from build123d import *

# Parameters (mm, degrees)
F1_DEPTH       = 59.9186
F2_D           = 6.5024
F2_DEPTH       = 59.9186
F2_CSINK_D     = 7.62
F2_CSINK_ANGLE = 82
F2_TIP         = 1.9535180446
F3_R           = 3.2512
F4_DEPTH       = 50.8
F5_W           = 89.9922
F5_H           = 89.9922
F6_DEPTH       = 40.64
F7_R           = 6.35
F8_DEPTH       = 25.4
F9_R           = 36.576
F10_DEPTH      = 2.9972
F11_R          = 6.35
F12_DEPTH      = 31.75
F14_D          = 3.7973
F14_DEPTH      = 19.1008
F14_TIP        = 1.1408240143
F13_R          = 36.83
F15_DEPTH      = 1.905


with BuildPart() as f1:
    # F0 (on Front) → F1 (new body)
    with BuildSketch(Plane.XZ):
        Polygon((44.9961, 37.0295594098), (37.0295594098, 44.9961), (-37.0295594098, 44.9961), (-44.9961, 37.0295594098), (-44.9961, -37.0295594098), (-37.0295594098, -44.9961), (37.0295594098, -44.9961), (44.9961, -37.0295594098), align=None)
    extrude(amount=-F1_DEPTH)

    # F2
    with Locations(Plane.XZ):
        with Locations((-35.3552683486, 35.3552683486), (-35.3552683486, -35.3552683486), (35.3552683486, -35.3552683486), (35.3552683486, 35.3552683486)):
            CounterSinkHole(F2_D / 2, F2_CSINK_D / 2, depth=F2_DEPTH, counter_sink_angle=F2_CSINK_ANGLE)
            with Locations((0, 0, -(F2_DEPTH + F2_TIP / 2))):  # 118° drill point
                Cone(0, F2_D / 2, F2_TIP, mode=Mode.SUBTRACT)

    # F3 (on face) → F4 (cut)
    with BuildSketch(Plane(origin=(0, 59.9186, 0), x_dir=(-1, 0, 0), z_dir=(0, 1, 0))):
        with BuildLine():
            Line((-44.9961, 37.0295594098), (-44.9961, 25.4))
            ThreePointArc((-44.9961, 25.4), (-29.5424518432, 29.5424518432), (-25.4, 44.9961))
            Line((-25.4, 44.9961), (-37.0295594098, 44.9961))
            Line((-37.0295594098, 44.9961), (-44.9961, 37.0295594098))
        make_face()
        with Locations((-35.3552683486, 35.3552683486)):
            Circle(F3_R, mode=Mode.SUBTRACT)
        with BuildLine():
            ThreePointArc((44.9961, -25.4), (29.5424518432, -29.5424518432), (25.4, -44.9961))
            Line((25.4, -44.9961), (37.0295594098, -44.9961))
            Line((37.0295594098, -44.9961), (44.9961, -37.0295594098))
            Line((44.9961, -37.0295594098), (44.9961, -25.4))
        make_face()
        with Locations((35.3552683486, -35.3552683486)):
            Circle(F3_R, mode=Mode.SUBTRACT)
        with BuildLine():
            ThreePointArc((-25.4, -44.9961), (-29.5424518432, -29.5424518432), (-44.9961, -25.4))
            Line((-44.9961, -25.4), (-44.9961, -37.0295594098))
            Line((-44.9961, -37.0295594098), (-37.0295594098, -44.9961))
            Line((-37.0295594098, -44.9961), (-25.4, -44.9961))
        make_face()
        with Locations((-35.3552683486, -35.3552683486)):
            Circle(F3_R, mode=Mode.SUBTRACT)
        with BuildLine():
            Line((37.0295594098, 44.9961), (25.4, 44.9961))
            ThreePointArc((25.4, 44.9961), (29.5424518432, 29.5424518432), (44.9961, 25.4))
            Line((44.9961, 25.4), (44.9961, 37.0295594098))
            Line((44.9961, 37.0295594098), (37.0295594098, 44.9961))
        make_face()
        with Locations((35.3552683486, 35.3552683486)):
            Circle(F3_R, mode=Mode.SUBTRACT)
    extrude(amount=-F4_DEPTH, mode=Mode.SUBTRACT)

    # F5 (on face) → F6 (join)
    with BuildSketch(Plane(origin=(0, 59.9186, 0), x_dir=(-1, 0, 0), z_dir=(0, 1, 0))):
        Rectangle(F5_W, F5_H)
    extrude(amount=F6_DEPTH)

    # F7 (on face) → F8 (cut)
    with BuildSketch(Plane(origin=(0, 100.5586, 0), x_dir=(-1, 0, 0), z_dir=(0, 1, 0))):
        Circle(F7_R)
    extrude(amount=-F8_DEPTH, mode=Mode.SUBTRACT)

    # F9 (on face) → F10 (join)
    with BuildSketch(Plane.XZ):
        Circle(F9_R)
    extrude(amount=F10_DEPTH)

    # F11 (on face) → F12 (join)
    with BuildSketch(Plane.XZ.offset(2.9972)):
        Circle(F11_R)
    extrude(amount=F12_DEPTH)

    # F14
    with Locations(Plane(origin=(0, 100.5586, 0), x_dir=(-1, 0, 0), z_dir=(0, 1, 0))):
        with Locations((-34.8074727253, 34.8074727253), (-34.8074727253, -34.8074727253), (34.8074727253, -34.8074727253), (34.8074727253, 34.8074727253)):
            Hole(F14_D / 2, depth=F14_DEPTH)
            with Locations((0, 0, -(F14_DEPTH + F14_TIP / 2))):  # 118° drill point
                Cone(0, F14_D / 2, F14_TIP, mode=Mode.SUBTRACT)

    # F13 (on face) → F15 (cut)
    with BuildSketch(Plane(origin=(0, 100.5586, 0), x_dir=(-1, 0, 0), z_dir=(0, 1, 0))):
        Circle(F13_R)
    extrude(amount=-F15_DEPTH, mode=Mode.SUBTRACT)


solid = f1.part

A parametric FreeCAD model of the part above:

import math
import FreeCAD as App
import Part
import Sketcher
from FreeCAD import Vector
Q = App.Units.Quantity

doc = App.newDocument("Part")
body = doc.addObject("PartDesign::Body", "Body")

sketch1 = body.newObject("Sketcher::SketchObject", "Sketch")
sketch1.AttachmentSupport = (doc.getObject("XZ_Plane"), [""])
sketch1.MapMode = "FlatFace"
sketch1.addGeometry([
    Part.LineSegment(Vector(45, 37, 0), Vector(37, 45, 0)),
    Part.LineSegment(Vector(37, 45, 0), Vector(-37, 45, 0)),
    Part.LineSegment(Vector(-37, 45, 0), Vector(-45, 37, 0)),
    Part.LineSegment(Vector(-45, 37, 0), Vector(-45, -37, 0)),
    Part.LineSegment(Vector(-45, -37, 0), Vector(-37, -45, 0)),
    Part.LineSegment(Vector(-37, -45, 0), Vector(37, -45, 0)),
    Part.LineSegment(Vector(37, -45, 0), Vector(45, -37, 0)),
    Part.LineSegment(Vector(45, -37, 0), Vector(45, 37, 0)),
], False)
sketch1.addConstraint([
    Sketcher.Constraint("Coincident", 0, 2, 1, 1),
    Sketcher.Constraint("Coincident", 1, 2, 2, 1),
    Sketcher.Constraint("Coincident", 2, 2, 3, 1),
    Sketcher.Constraint("Coincident", 3, 2, 4, 1),
    Sketcher.Constraint("Coincident", 4, 2, 5, 1),
    Sketcher.Constraint("Coincident", 5, 2, 6, 1),
    Sketcher.Constraint("Coincident", 6, 2, 7, 1),
    Sketcher.Constraint("Coincident", 7, 2, 0, 1),
    Sketcher.Constraint("Horizontal", 1),
    Sketcher.Constraint("Vertical", 3),
    Sketcher.Constraint("Horizontal", 5),
    Sketcher.Constraint("Vertical", 7),
    Sketcher.Constraint("Symmetric", 0, 2, 4, 2, -1, 1),
    Sketcher.Constraint("Symmetric", 2, 2, 6, 2, -1, 1),
    Sketcher.Constraint("Perpendicular", 0, 2),
    Sketcher.Constraint("Perpendicular", 2, 4),
    Sketcher.Constraint("Perpendicular", 4, 6),
    Sketcher.Constraint("Horizontal", 3, 2, 6, 2),
    Sketcher.Constraint("Vertical", 1, 2, 4, 2),
    Sketcher.Constraint("Equal", 5, 3),
    Sketcher.Constraint("DistanceY", 4, 2, 1, 2, Q("3.543 in")),
    Sketcher.Constraint("DistanceX", 1, 2, 1, 1, 74.059119),
])
pad1 = body.newObject("PartDesign::Pad", "Pad")
pad1.Profile = sketch1
pad1.Length = Q("2.359 in")
pad1.Reversed = True

sketch2 = body.newObject("Sketcher::SketchObject", "Sketch001")
sketch2.AttachmentSupport = (doc.getObject("XZ_Plane"), [""])
sketch2.MapMode = "FlatFace"
sketch2.addGeometry([
    Part.Circle(Vector(-35.4, 35.4, 0), Vector(0, 0, 1), 3.3),
    Part.Circle(Vector(-35.4, -35.4, 0), Vector(0, 0, 1), 3.3),
    Part.Circle(Vector(35.4, -35.4, 0), Vector(0, 0, 1), 3.3),
    Part.Circle(Vector(35.4, 35.4, 0), Vector(0, 0, 1), 3.3),
], False)
sketch2.addConstraint([
    Sketcher.Constraint("Equal", 0, 1),
    Sketcher.Constraint("Equal", 1, 2),
    Sketcher.Constraint("Equal", 2, 3),
    Sketcher.Constraint("Symmetric", 0, 3, 2, 3, -1, 1),
    Sketcher.Constraint("Symmetric", 1, 3, 3, 3, -1, 1),
    Sketcher.Constraint("Symmetric", 1, 3, 2, 3, -2),
    Sketcher.Constraint("Diameter", 0, Q("0.256 in")),
    Sketcher.Constraint("DistanceX", 0, 3, -1, 1, 35.355268),
    Sketcher.Constraint("DistanceY", -1, 1, 0, 3, 35.355268),
])
doc.recompute()
hole = body.newObject("PartDesign::Hole", "Hole")
hole.Profile = sketch2
hole.ThreadType = "None"
hole.Diameter = Q("0.256 in")
hole.DepthType = "Dimension"
hole.Depth = Q("2.359 in")
hole.DrillPoint = "Angled"
hole.DrillPointAngle = 118
hole.HoleCutType = "Countersink"
hole.HoleCutDiameter = Q("0.3 in")
hole.HoleCutCountersinkAngle = 82

sketch3 = body.newObject("Sketcher::SketchObject", "Sketch002")
sketch3.AttachmentSupport = (doc.getObject("XZ_Plane"), [""])
sketch3.MapMode = "FlatFace"
sketch3.AttachmentOffset = App.Placement(Vector(0, 0, -2.359 * 25.4), App.Rotation())
sketch3.addGeometry([
    Part.LineSegment(Vector(45, 37, 0), Vector(45, 25.4, 0)),
    Part.ArcOfCircle(Part.Circle(Vector(40.9, 40.9, 0), Vector(0, 0, 1), 16), math.radians(165), math.radians(285)),
    Part.LineSegment(Vector(25.4, 45, 0), Vector(37, 45, 0)),
    Part.LineSegment(Vector(37, 45, 0), Vector(45, 37, 0)),
    Part.Circle(Vector(35.4, 35.4, 0), Vector(0, 0, 1), 3.3),
    Part.ArcOfCircle(Part.Circle(Vector(-40.9, -40.9, 0), Vector(0, 0, 1), 16), math.radians(-15), math.radians(105)),
    Part.LineSegment(Vector(-25.4, -45, 0), Vector(-37, -45, 0)),
    Part.LineSegment(Vector(-37, -45, 0), Vector(-45, -37, 0)),
    Part.LineSegment(Vector(-45, -37, 0), Vector(-45, -25.4, 0)),
    Part.Circle(Vector(-35.4, -35.4, 0), Vector(0, 0, 1), 3.3),
    Part.ArcOfCircle(Part.Circle(Vector(40.9, -40.9, 0), Vector(0, 0, 1), 16), math.radians(75), math.radians(195)),
    Part.LineSegment(Vector(45, -25.4, 0), Vector(45, -37, 0)),
    Part.LineSegment(Vector(45, -37, 0), Vector(37, -45, 0)),
    Part.LineSegment(Vector(37, -45, 0), Vector(25.4, -45, 0)),
    Part.Circle(Vector(35.4, -35.4, 0), Vector(0, 0, 1), 3.3),
    Part.LineSegment(Vector(-37, 45, 0), Vector(-25.4, 45, 0)),
    Part.ArcOfCircle(Part.Circle(Vector(-40.9, 40.9, 0), Vector(0, 0, 1), 16), math.radians(-105), math.radians(15)),
    Part.LineSegment(Vector(-45, 25.4, 0), Vector(-45, 37, 0)),
    Part.LineSegment(Vector(-45, 37, 0), Vector(-37, 45, 0)),
    Part.Circle(Vector(-35.4, 35.4, 0), Vector(0, 0, 1), 3.3),
], False)
sketch3.addConstraint([
    Sketcher.Constraint("Coincident", 0, 2, 1, 2),
    Sketcher.Constraint("Coincident", 1, 1, 2, 1),
    Sketcher.Constraint("Coincident", 2, 2, 3, 1),
    Sketcher.Constraint("Coincident", 3, 2, 0, 1),
    Sketcher.Constraint("Coincident", 5, 1, 6, 1),
    Sketcher.Constraint("Coincident", 6, 2, 7, 1),
    Sketcher.Constraint("Coincident", 7, 2, 8, 1),
    Sketcher.Constraint("Coincident", 8, 2, 5, 2),
    Sketcher.Constraint("Coincident", 10, 1, 11, 1),
    Sketcher.Constraint("Coincident", 11, 2, 12, 1),
    Sketcher.Constraint("Coincident", 12, 2, 13, 1),
    Sketcher.Constraint("Coincident", 13, 2, 10, 2),
    Sketcher.Constraint("Coincident", 15, 2, 16, 2),
    Sketcher.Constraint("Coincident", 16, 1, 17, 1),
    Sketcher.Constraint("Coincident", 17, 2, 18, 1),
    Sketcher.Constraint("Coincident", 18, 2, 15, 1),
    Sketcher.Constraint("Vertical", 0),
    Sketcher.Constraint("Horizontal", 2),
    Sketcher.Constraint("Horizontal", 6),
    Sketcher.Constraint("Vertical", 8),
    Sketcher.Constraint("Vertical", 11),
    Sketcher.Constraint("Horizontal", 13),
    Sketcher.Constraint("Horizontal", 15),
    Sketcher.Constraint("Vertical", 17),
    Sketcher.Constraint("Equal", 1, 5),
    Sketcher.Constraint("Equal", 4, 9),
    Sketcher.Constraint("Equal", 5, 10),
    Sketcher.Constraint("Equal", 9, 14),
    Sketcher.Constraint("Equal", 10, 16),
    Sketcher.Constraint("Equal", 14, 19),
    Sketcher.Constraint("Symmetric", 1, 3, 5, 3, -1, 1),
    Sketcher.Constraint("Symmetric", 4, 3, 9, 3, -1, 1),
    Sketcher.Constraint("Symmetric", 10, 3, 16, 3, -1, 1),
    Sketcher.Constraint("Symmetric", 14, 3, 19, 3, -1, 1),
    Sketcher.Constraint("Symmetric", 2, 2, 6, 2, -1, 1),
    Sketcher.Constraint("Symmetric", 3, 2, 7, 2, -1, 1),
    Sketcher.Constraint("Symmetric", 11, 2, 17, 2, -1, 1),
    Sketcher.Constraint("Symmetric", 12, 2, 18, 2, -1, 1),
    Sketcher.Constraint("Symmetric", 5, 3, 10, 3, -2),
    Sketcher.Constraint("Symmetric", 9, 3, 14, 3, -2),
    Sketcher.Constraint("Symmetric", 7, 2, 11, 2, -2),
    Sketcher.Constraint("Symmetric", 6, 2, 12, 2, -2),
    Sketcher.Constraint("Perpendicular", 7, 12),
    Sketcher.Constraint("Equal", 15, 0),
    Sketcher.Constraint("Radius", 1, Q("0.63 in")),
    Sketcher.Constraint("Diameter", 4, Q("0.256 in")),
    Sketcher.Constraint("DistanceY", -1, 1, 0, 2, Q("1 in")),
    Sketcher.Constraint("DistanceX", -1, 1, 1, 1, Q("1 in")),
    Sketcher.Constraint("DistanceX", -1, 1, 0, 2, Q("1.7715 in")),
    Sketcher.Constraint("DistanceX", 2, 1, 2, 2, 11.629559),
    Sketcher.Constraint("DistanceX", -1, 1, 4, 3, 35.355268),
    Sketcher.Constraint("DistanceY", -1, 1, 4, 3, 35.355268),
])
pocket1 = body.newObject("PartDesign::Pocket", "Pocket")
pocket1.Profile = sketch3
pocket1.Length = Q("2 in")
pocket1.Reversed = True

sketch4 = body.newObject("Sketcher::SketchObject", "Sketch003")
sketch4.AttachmentSupport = (doc.getObject("XZ_Plane"), [""])
sketch4.MapMode = "FlatFace"
sketch4.AttachmentOffset = App.Placement(Vector(0, 0, -2.359 * 25.4), App.Rotation())
sketch4.addGeometry([
    Part.LineSegment(Vector(45, 45, 0), Vector(45, -45, 0)),
    Part.LineSegment(Vector(45, -45, 0), Vector(-45, -45, 0)),
    Part.LineSegment(Vector(-45, -45, 0), Vector(-45, 45, 0)),
    Part.LineSegment(Vector(-45, 45, 0), Vector(45, 45, 0)),
], False)
sketch4.addConstraint([
    Sketcher.Constraint("Coincident", 0, 2, 1, 1),
    Sketcher.Constraint("Coincident", 1, 2, 2, 1),
    Sketcher.Constraint("Coincident", 2, 2, 3, 1),
    Sketcher.Constraint("Coincident", 3, 2, 0, 1),
    Sketcher.Constraint("Vertical", 0),
    Sketcher.Constraint("Horizontal", 1),
    Sketcher.Constraint("Vertical", 2),
    Sketcher.Constraint("Horizontal", 3),
    Sketcher.Constraint("Symmetric", 0, 2, 2, 2, -1, 1),
    Sketcher.Constraint("Equal", 3, 0),
    Sketcher.Constraint("DistanceX", 1, 2, 1, 1, Q("3.543 in")),
])
pad2 = body.newObject("PartDesign::Pad", "Pad001")
pad2.Profile = sketch4
pad2.Length = Q("1.6 in")
pad2.Reversed = True

sketch5 = body.newObject("Sketcher::SketchObject", "Sketch004")
sketch5.AttachmentSupport = (doc.getObject("XZ_Plane"), [""])
sketch5.MapMode = "FlatFace"
sketch5.AttachmentOffset = App.Placement(Vector(0, 0, -3.959 * 25.4), App.Rotation())
sketch5.addGeometry(Part.Circle(Vector(0, 0, 0), Vector(0, 0, 1), 6), False)
sketch5.addConstraint([
    Sketcher.Constraint("Coincident", 0, 3, -1, 1),
    Sketcher.Constraint("Diameter", 0, Q("0.5 in")),
])
pocket2 = body.newObject("PartDesign::Pocket", "Pocket001")
pocket2.Profile = sketch5
pocket2.Length = Q("1 in")
pocket2.Reversed = True

sketch6 = body.newObject("Sketcher::SketchObject", "Sketch005")
sketch6.AttachmentSupport = (doc.getObject("XZ_Plane"), [""])
sketch6.MapMode = "FlatFace"
sketch6.addGeometry(Part.Circle(Vector(0, 0, 0), Vector(0, 0, 1), 37), False)
sketch6.addConstraint([
    Sketcher.Constraint("Coincident", 0, 3, -1, 1),
    Sketcher.Constraint("Diameter", 0, Q("2.88 in")),
])
pad3 = body.newObject("PartDesign::Pad", "Pad002")
pad3.Profile = sketch6
pad3.Length = Q("0.118 in")

sketch7 = body.newObject("Sketcher::SketchObject", "Sketch006")
sketch7.AttachmentSupport = (doc.getObject("XZ_Plane"), [""])
sketch7.MapMode = "FlatFace"
sketch7.AttachmentOffset = App.Placement(Vector(0, 0, 0.118 * 25.4), App.Rotation())
sketch7.addGeometry(Part.Circle(Vector(0, 0, 0), Vector(0, 0, 1), 6), False)
sketch7.addConstraint([
    Sketcher.Constraint("Coincident", 0, 3, -1, 1),
    Sketcher.Constraint("Diameter", 0, Q("0.5 in")),
])
pad4 = body.newObject("PartDesign::Pad", "Pad003")
pad4.Profile = sketch7
pad4.Length = Q("1.25 in")

sketch8 = body.newObject("Sketcher::SketchObject", "Sketch007")
sketch8.AttachmentSupport = (doc.getObject("XZ_Plane"), [""])
sketch8.MapMode = "FlatFace"
sketch8.AttachmentOffset = App.Placement(Vector(0, 0, -3.959 * 25.4), App.Rotation())
sketch8.addGeometry([
    Part.Circle(Vector(34.8, 34.8, 0), Vector(0, 0, 1), 1.9),
    Part.Circle(Vector(34.8, -34.8, 0), Vector(0, 0, 1), 1.9),
    Part.Circle(Vector(-34.8, -34.8, 0), Vector(0, 0, 1), 1.9),
    Part.Circle(Vector(-34.8, 34.8, 0), Vector(0, 0, 1), 1.9),
], False)
sketch8.addConstraint([
    Sketcher.Constraint("Equal", 0, 1),
    Sketcher.Constraint("Equal", 1, 2),
    Sketcher.Constraint("Equal", 2, 3),
    Sketcher.Constraint("Symmetric", 0, 3, 2, 3, -1, 1),
    Sketcher.Constraint("Symmetric", 1, 3, 3, 3, -1, 1),
    Sketcher.Constraint("Symmetric", 1, 3, 2, 3, -2),
    Sketcher.Constraint("Diameter", 0, Q("0.1495 in")),
    Sketcher.Constraint("DistanceX", -1, 1, 0, 3, 34.807473),
    Sketcher.Constraint("DistanceY", -1, 1, 0, 3, 34.807473),
])
doc.recompute()
hole2 = body.newObject("PartDesign::Hole", "Hole001")
hole2.Profile = sketch8
hole2.ThreadType = "None"
hole2.Diameter = Q("0.1495 in")
hole2.DepthType = "Dimension"
hole2.Depth = Q("0.752 in")
hole2.DrillPoint = "Angled"
hole2.DrillPointAngle = 118
hole2.Reversed = True

sketch9 = body.newObject("Sketcher::SketchObject", "Sketch008")
sketch9.AttachmentSupport = (doc.getObject("XZ_Plane"), [""])
sketch9.MapMode = "FlatFace"
sketch9.AttachmentOffset = App.Placement(Vector(0, 0, -3.959 * 25.4), App.Rotation())
sketch9.addGeometry(Part.Circle(Vector(0, 0, 0), Vector(0, 0, 1), 37), False)
sketch9.addConstraint([
    Sketcher.Constraint("Coincident", 0, 3, -1, 1),
    Sketcher.Constraint("Diameter", 0, Q("2.9 in")),
])
pocket3 = body.newObject("PartDesign::Pocket", "Pocket002")
pocket3.Profile = sketch9
pocket3.Length = Q("0.075 in")
pocket3.Reversed = True

doc.recompute()
